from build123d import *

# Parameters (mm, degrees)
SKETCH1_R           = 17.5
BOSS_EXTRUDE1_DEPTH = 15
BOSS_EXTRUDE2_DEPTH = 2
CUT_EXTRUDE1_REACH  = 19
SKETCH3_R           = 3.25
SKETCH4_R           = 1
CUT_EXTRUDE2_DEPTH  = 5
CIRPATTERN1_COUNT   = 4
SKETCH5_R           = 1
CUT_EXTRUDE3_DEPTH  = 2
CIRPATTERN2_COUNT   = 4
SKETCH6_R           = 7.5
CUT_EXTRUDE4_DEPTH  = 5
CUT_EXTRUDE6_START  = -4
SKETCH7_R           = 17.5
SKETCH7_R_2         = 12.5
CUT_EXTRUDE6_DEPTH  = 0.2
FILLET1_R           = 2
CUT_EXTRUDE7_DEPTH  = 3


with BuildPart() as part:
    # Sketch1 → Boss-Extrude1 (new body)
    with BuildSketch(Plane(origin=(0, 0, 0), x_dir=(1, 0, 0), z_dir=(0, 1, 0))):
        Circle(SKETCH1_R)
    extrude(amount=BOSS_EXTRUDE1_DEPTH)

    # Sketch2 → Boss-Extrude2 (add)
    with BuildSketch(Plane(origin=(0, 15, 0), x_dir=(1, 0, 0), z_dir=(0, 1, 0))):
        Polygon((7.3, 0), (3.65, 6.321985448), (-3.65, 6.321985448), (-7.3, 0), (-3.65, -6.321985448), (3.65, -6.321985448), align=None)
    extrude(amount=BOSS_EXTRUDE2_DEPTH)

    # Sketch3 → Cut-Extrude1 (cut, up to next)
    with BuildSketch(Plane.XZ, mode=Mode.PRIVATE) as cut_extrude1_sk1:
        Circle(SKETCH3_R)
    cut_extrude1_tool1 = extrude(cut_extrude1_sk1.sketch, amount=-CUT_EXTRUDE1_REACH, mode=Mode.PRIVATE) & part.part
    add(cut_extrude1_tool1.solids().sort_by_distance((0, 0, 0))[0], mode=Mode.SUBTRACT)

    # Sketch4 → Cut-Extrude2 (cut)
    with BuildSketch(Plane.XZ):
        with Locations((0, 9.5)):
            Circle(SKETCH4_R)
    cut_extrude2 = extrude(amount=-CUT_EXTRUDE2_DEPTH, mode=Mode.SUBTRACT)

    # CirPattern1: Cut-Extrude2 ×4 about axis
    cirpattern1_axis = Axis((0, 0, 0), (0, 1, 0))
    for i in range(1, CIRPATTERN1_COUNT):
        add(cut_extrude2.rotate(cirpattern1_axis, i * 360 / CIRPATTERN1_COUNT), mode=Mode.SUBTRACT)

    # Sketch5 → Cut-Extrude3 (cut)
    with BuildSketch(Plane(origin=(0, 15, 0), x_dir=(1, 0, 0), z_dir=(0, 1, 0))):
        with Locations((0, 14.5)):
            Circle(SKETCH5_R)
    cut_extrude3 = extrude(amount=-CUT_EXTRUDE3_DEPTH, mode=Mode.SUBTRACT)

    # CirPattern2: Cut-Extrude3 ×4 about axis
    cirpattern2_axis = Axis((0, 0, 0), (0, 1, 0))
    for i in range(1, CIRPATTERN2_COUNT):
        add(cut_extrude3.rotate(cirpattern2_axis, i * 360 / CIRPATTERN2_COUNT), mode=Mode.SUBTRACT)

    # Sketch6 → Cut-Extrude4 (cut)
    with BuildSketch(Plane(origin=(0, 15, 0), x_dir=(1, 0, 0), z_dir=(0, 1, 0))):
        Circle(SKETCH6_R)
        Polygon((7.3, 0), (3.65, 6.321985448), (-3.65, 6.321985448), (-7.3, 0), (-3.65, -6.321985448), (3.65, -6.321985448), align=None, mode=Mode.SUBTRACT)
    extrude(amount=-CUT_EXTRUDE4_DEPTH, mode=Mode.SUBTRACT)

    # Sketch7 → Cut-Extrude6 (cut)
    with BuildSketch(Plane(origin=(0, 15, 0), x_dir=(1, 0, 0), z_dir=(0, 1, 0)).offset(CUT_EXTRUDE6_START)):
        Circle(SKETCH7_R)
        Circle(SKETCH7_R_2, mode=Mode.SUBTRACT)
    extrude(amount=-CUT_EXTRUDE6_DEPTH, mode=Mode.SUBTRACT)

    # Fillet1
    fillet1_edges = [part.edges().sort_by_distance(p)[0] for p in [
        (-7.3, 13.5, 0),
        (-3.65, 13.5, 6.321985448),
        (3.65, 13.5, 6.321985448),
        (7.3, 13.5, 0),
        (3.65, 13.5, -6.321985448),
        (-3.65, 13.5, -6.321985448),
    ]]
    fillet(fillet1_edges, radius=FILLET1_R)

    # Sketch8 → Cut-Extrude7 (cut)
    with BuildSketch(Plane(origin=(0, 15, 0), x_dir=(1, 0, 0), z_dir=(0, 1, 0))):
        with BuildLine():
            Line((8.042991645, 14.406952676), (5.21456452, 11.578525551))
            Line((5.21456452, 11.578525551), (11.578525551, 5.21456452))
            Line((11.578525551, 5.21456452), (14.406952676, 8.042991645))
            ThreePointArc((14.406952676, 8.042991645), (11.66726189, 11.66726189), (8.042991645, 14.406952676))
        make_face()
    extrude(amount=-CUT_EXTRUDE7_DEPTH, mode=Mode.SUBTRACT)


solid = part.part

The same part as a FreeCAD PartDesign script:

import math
import FreeCAD as App
import Part
import Sketcher

V = App.Vector
Q = App.Units.Quantity


def edges_at(feature, points):
    """Names of the edges that pass closest to the given points."""
    edges = feature.Shape.Edges
    near = lambda p: min(range(len(edges)), key=lambda i: edges[i].distToShape(Part.Vertex(*p))[0])
    return sorted({f"Edge{near(p) + 1}" for p in points})


def add_polygon(sketch, points):
    """Adds a closed chain of lines whose ends are joined by coincident constraints."""
    first, n = sketch.GeometryCount, len(points)
    for a, b in zip(points, points[1:] + points[:1]):
        sketch.addGeometry(Part.LineSegment(App.Vector(*a, 0), App.Vector(*b, 0)), False)
    for i in range(n):
        sketch.addConstraint(Sketcher.Constraint("Coincident", first + i, 2, first + (i + 1) % n, 1))

doc = App.newDocument("Part")
body = doc.addObject("PartDesign::Body", "Body")

sketch1 = body.newObject("Sketcher::SketchObject", "Sketch")
sketch1.AttachmentSupport = (doc.getObject("XZ_Plane"), [""])
sketch1.MapMode = "FlatFace"
sketch1.addGeometry(Part.Circle(V(0, 0, 0), V(0, 0, 1), 17.5), False)
sketch1.addConstraint([
    Sketcher.Constraint("Coincident", 0, 3, -1, 1),
    Sketcher.Constraint("Diameter", 0, Q("35 mm")),
])
pad1 = body.newObject("PartDesign::Pad", "Pad")
pad1.Profile = sketch1
pad1.Length = 15
pad1.Reversed = True

sketch2 = body.newObject("Sketcher::SketchObject", "Sketch001")
sketch2.AttachmentSupport = (doc.getObject("XZ_Plane"), [""])
sketch2.MapMode = "FlatFace"
sketch2.AttachmentOffset = App.Placement(V(0, 0, -15), App.Rotation())
add_polygon(sketch2, [(7.3, 0), (3.65, -6.321985), (-3.65, -6.321985), (-7.3, 0), (-3.65, 6.321985), (3.65, 6.321985)])
sketch2.addConstraint([
    Sketcher.Constraint("Horizontal", 1),
    Sketcher.Constraint("Horizontal", 4),
    Sketcher.Constraint("Symmetric", 0, 2, 3, 2, -1, 1),
    Sketcher.Constraint("Symmetric", 2, 2, 5, 2, -1, 1),
    Sketcher.Constraint("PointOnObject", 2, 2, -1),
    Sketcher.Constraint("Parallel", 2, 5),
    Sketcher.Constraint("Vertical", 1, 2, 3, 2),
    Sketcher.Constraint("Angle", 0, Q("-120 deg")),
    Sketcher.Constraint("DistanceX", 1, 2, 1, 1, Q("7.3 mm")),
    Sketcher.Constraint("Distance", 0, Q("7.3 mm")),
])
pad2 = body.newObject("PartDesign::Pad", "Pad001")
pad2.Profile = sketch2
pad2.Length = 2
pad2.Reversed = True

sketch3 = body.newObject("Sketcher::SketchObject", "Sketch002")
sketch3.AttachmentSupport = (doc.getObject("XZ_Plane"), [""])
sketch3.MapMode = "FlatFace"
sketch3.addGeometry(Part.Circle(V(0, 0, 0), V(0, 0, 1), 3.25), False)
sketch3.addConstraint([
    Sketcher.Constraint("Coincident", 0, 3, -1, 1),
    Sketcher.Constraint("Diameter", 0, Q("6.5 mm")),
])
pocket1 = body.newObject("PartDesign::Pocket", "Pocket")
pocket1.Profile = sketch3
pocket1.Type = "UpToFirst"

sketch4 = body.newObject("Sketcher::SketchObject", "Sketch003")
sketch4.AttachmentSupport = (doc.getObject("XZ_Plane"), [""])
sketch4.MapMode = "FlatFace"
sketch4.addGeometry(Part.Circle(V(0, 9.5, 0), V(0, 0, 1), 1), False)
sketch4.addConstraint([
    Sketcher.Constraint("PointOnObject", 0, 3, -2),
    Sketcher.Constraint("Diameter", 0, Q("2 mm")),
    Sketcher.Constraint("DistanceY", -1, 1, 0, 3, Q("9.5 mm")),
])
pocket2 = body.newObject("PartDesign::Pocket", "Pocket001")
pocket2.Profile = sketch4
pocket2.Length = 5
doc.recompute()

polarpattern = body.newObject("PartDesign::PolarPattern", "PolarPattern")
polarpattern.Originals = [pocket2]
polarpattern.Axis = (doc.getObject("Y_Axis"), [""])
polarpattern.Angle = 360
polarpattern.Occurrences = 4
body.Tip = polarpattern

sketch5 = body.newObject("Sketcher::SketchObject", "Sketch004")
sketch5.AttachmentSupport = (doc.getObject("XZ_Plane"), [""])
sketch5.MapMode = "FlatFace"
sketch5.AttachmentOffset = App.Placement(V(0, 0, -15), App.Rotation())
sketch5.addGeometry(Part.Circle(V(0, -14.5, 0), V(0, 0, 1), 1), False)
sketch5.addConstraint([
    Sketcher.Constraint("PointOnObject", 0, 3, -2),
    Sketcher.Constraint("Diameter", 0, Q("2 mm")),
    Sketcher.Constraint("DistanceY", 0, 3, -1, 1, Q("14.5 mm")),
])
pocket3 = body.newObject("PartDesign::Pocket", "Pocket002")
pocket3.Profile = sketch5
pocket3.Length = 2
pocket3.Reversed = True
doc.recompute()

polarpattern2 = body.newObject("PartDesign::PolarPattern", "PolarPattern001")
polarpattern2.Originals = [pocket3]
polarpattern2.Axis = (doc.getObject("Y_Axis"), [""])
polarpattern2.Angle = 360
polarpattern2.Occurrences = 4
body.Tip = polarpattern2

sketch6 = body.newObject("Sketcher::SketchObject", "Sketch005")
sketch6.AttachmentSupport = (doc.getObject("XZ_Plane"), [""])
sketch6.MapMode = "FlatFace"
sketch6.AttachmentOffset = App.Placement(V(0, 0, -15), App.Rotation())
sketch6.addGeometry(Part.Circle(V(0, 0, 0), V(0, 0, 1), 7.5), False)
add_polygon(sketch6, [(3.65, -6.321985), (7.3, 0), (3.65, 6.321985), (-3.65, 6.321985), (-7.3, 0), (-3.65, -6.321985)])
sketch6.addConstraint([
    Sketcher.Constraint("Horizontal", 3),
    Sketcher.Constraint("Horizontal", 6),
    Sketcher.Constraint("Coincident", 0, 3, -1, 1),
    Sketcher.Constraint("Symmetric", 1, 2, 4, 2, -1, 1),
    Sketcher.Constraint("Symmetric", 2, 2, 5, 2, -1, 1),
    Sketcher.Constraint("PointOnObject", 1, 2, -1),
    Sketcher.Constraint("Parallel", 1, 4),
    Sketcher.Constraint("Vertical", 3, 2, 5, 2),
    Sketcher.Constraint("Diameter", 0, Q("15 mm")),
    Sketcher.Constraint("Angle", 1, Q("60 deg")),
    Sketcher.Constraint("DistanceX", 3, 2, 3, 1, Q("7.3 mm")),
    Sketcher.Constraint("Distance", 1, Q("7.3 mm")),
])
pocket4 = body.newObject("PartDesign::Pocket", "Pocket003")
pocket4.Profile = sketch6
pocket4.Length = 5
pocket4.Reversed = True

sketch7 = body.newObject("Sketcher::SketchObject", "Sketch006")
sketch7.AttachmentSupport = (doc.getObject("XZ_Plane"), [""])
sketch7.MapMode = "FlatFace"
sketch7.AttachmentOffset = App.Placement(V(0, 0, -11), App.Rotation())
sketch7.addGeometry([
    Part.Circle(V(0, 0, 0), V(0, 0, 1), 17.5),
    Part.Circle(V(0, 0, 0), V(0, 0, 1), 12.5),
], False)
sketch7.addConstraint([
    Sketcher.Constraint("Coincident", 0, 3, -1, 1),
    Sketcher.Constraint("Coincident", 1, 3, -1, 1),
    Sketcher.Constraint("Diameter", 0, Q("35 mm")),
    Sketcher.Constraint("Diameter", 1, Q("25 mm")),
])
pocket5 = body.newObject("PartDesign::Pocket", "Pocket004")
pocket5.Profile = sketch7
pocket5.Length = 0.2
pocket5.Reversed = True
doc.recompute()

fillet = body.newObject("PartDesign::Fillet", "Fillet")
fillet.Base = (pocket5, edges_at(pocket5, [
    (-7.3, 13.5, 0),
    (-3.65, 13.5, 6.322),
    (3.65, 13.5, 6.322),
    (7.3, 13.5, 0),
    (3.65, 13.5, -6.322),
    (-3.65, 13.5, -6.322),
]))
fillet.Radius = 2

sketch8 = body.newObject("Sketcher::SketchObject", "Sketch007")
sketch8.AttachmentSupport = (doc.getObject("XZ_Plane"), [""])
sketch8.MapMode = "FlatFace"
sketch8.AttachmentOffset = App.Placement(V(0, 0, -15), App.Rotation())
sketch8.addGeometry([
    Part.LineSegment(V(8.042992, -14.406953, 0), V(5.214565, -11.578526, 0)),
    Part.LineSegment(V(5.214565, -11.578526, 0), V(11.578526, -5.214565, 0)),
    Part.LineSegment(V(11.578526, -5.214565, 0), V(14.406953, -8.042992, 0)),
    Part.ArcOfCircle(Part.Circle(V(0, 0, 0), V(0, 0, 1), 16.5), math.radians(-60.82662), math.radians(-29.17338)),
], False)
sketch8.addConstraint([
    Sketcher.Constraint("Coincident", 0, 2, 1, 1),
    Sketcher.Constraint("Coincident", 1, 2, 2, 1),
    Sketcher.Constraint("Coincident", 2, 2, 3, 2),
    Sketcher.Constraint("Coincident", 3, 1, 0, 1),
    Sketcher.Constraint("Coincident", 3, 3, -1, 1),
    Sketcher.Constraint("Perpendicular", 0, 1),
    Sketcher.Constraint("Perpendicular", 1, 2),
    Sketcher.Constraint("Equal", 0, 2),
    Sketcher.Constraint("Radius", 3, Q("16.5 mm")),
    Sketcher.Constraint("Angle", 0, Q("135 deg")),
    Sketcher.Constraint("Distance", 0, Q("4 mm")),
    Sketcher.Constraint("Distance", 1, Q("9 mm")),
])
pocket6 = body.newObject("PartDesign::Pocket", "Pocket005")
pocket6.Profile = sketch8
pocket6.Length = 3
pocket6.Reversed = True

doc.recompute()
